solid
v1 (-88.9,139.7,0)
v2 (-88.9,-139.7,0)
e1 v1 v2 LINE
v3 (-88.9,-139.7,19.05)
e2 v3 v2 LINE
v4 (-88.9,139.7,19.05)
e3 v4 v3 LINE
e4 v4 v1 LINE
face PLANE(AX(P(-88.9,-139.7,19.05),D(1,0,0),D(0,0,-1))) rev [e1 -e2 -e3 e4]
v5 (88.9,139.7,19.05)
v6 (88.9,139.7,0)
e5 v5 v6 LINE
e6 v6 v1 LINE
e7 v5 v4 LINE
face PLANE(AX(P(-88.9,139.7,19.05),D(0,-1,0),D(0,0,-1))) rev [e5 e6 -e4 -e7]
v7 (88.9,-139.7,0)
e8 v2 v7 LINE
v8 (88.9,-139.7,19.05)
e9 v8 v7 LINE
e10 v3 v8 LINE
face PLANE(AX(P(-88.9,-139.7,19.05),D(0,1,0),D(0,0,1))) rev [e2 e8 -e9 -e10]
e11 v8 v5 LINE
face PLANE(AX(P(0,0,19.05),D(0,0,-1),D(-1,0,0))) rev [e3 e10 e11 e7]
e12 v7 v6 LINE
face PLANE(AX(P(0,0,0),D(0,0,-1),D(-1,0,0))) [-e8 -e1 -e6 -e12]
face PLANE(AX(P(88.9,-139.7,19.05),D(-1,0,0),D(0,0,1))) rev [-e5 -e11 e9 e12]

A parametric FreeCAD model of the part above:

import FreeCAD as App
import Part
import Sketcher

V = App.Vector
Q = App.Units.Quantity

doc = App.newDocument("Part")
body = doc.addObject("PartDesign::Body", "Body")

sketch1 = body.newObject("Sketcher::SketchObject", "Sketch")
sketch1.AttachmentSupport = (doc.getObject("XY_Plane"), [""])
sketch1.MapMode = "FlatFace"
sketch1.addGeometry([
    Part.LineSegment(V(-88.9, 139.7, 0), V(-88.9, -139.7, 0)),
    Part.LineSegment(V(-88.9, -139.7, 0), V(88.9, -139.7, 0)),
    Part.LineSegment(V(88.9, -139.7, 0), V(88.9, 139.7, 0)),
    Part.LineSegment(V(88.9, 139.7, 0), V(-88.9, 139.7, 0)),
], False)
sketch1.addConstraint([
    Sketcher.Constraint("Coincident", 0, 2, 1, 1),
    Sketcher.Constraint("Coincident", 1, 2, 2, 1),
    Sketcher.Constraint("Coincident", 2, 2, 3, 1),
    Sketcher.Constraint("Coincident", 3, 2, 0, 1),
    Sketcher.Constraint("Vertical", 0),
    Sketcher.Constraint("Horizontal", 1),
    Sketcher.Constraint("Vertical", 2),
    Sketcher.Constraint("Horizontal", 3),
    Sketcher.Constraint("Symmetric", 0, 2, 2, 2, -1, 1),
    Sketcher.Constraint("DistanceX", 1, 1, 1, 2, Q("7 in")),
    Sketcher.Constraint("DistanceY", 0, 2, 0, 1, Q("11 in")),
])
pad1 = body.newObject("PartDesign::Pad", "Pad")
pad1.Profile = sketch1
pad1.Length = Q("0.75 in")

doc.recompute()
